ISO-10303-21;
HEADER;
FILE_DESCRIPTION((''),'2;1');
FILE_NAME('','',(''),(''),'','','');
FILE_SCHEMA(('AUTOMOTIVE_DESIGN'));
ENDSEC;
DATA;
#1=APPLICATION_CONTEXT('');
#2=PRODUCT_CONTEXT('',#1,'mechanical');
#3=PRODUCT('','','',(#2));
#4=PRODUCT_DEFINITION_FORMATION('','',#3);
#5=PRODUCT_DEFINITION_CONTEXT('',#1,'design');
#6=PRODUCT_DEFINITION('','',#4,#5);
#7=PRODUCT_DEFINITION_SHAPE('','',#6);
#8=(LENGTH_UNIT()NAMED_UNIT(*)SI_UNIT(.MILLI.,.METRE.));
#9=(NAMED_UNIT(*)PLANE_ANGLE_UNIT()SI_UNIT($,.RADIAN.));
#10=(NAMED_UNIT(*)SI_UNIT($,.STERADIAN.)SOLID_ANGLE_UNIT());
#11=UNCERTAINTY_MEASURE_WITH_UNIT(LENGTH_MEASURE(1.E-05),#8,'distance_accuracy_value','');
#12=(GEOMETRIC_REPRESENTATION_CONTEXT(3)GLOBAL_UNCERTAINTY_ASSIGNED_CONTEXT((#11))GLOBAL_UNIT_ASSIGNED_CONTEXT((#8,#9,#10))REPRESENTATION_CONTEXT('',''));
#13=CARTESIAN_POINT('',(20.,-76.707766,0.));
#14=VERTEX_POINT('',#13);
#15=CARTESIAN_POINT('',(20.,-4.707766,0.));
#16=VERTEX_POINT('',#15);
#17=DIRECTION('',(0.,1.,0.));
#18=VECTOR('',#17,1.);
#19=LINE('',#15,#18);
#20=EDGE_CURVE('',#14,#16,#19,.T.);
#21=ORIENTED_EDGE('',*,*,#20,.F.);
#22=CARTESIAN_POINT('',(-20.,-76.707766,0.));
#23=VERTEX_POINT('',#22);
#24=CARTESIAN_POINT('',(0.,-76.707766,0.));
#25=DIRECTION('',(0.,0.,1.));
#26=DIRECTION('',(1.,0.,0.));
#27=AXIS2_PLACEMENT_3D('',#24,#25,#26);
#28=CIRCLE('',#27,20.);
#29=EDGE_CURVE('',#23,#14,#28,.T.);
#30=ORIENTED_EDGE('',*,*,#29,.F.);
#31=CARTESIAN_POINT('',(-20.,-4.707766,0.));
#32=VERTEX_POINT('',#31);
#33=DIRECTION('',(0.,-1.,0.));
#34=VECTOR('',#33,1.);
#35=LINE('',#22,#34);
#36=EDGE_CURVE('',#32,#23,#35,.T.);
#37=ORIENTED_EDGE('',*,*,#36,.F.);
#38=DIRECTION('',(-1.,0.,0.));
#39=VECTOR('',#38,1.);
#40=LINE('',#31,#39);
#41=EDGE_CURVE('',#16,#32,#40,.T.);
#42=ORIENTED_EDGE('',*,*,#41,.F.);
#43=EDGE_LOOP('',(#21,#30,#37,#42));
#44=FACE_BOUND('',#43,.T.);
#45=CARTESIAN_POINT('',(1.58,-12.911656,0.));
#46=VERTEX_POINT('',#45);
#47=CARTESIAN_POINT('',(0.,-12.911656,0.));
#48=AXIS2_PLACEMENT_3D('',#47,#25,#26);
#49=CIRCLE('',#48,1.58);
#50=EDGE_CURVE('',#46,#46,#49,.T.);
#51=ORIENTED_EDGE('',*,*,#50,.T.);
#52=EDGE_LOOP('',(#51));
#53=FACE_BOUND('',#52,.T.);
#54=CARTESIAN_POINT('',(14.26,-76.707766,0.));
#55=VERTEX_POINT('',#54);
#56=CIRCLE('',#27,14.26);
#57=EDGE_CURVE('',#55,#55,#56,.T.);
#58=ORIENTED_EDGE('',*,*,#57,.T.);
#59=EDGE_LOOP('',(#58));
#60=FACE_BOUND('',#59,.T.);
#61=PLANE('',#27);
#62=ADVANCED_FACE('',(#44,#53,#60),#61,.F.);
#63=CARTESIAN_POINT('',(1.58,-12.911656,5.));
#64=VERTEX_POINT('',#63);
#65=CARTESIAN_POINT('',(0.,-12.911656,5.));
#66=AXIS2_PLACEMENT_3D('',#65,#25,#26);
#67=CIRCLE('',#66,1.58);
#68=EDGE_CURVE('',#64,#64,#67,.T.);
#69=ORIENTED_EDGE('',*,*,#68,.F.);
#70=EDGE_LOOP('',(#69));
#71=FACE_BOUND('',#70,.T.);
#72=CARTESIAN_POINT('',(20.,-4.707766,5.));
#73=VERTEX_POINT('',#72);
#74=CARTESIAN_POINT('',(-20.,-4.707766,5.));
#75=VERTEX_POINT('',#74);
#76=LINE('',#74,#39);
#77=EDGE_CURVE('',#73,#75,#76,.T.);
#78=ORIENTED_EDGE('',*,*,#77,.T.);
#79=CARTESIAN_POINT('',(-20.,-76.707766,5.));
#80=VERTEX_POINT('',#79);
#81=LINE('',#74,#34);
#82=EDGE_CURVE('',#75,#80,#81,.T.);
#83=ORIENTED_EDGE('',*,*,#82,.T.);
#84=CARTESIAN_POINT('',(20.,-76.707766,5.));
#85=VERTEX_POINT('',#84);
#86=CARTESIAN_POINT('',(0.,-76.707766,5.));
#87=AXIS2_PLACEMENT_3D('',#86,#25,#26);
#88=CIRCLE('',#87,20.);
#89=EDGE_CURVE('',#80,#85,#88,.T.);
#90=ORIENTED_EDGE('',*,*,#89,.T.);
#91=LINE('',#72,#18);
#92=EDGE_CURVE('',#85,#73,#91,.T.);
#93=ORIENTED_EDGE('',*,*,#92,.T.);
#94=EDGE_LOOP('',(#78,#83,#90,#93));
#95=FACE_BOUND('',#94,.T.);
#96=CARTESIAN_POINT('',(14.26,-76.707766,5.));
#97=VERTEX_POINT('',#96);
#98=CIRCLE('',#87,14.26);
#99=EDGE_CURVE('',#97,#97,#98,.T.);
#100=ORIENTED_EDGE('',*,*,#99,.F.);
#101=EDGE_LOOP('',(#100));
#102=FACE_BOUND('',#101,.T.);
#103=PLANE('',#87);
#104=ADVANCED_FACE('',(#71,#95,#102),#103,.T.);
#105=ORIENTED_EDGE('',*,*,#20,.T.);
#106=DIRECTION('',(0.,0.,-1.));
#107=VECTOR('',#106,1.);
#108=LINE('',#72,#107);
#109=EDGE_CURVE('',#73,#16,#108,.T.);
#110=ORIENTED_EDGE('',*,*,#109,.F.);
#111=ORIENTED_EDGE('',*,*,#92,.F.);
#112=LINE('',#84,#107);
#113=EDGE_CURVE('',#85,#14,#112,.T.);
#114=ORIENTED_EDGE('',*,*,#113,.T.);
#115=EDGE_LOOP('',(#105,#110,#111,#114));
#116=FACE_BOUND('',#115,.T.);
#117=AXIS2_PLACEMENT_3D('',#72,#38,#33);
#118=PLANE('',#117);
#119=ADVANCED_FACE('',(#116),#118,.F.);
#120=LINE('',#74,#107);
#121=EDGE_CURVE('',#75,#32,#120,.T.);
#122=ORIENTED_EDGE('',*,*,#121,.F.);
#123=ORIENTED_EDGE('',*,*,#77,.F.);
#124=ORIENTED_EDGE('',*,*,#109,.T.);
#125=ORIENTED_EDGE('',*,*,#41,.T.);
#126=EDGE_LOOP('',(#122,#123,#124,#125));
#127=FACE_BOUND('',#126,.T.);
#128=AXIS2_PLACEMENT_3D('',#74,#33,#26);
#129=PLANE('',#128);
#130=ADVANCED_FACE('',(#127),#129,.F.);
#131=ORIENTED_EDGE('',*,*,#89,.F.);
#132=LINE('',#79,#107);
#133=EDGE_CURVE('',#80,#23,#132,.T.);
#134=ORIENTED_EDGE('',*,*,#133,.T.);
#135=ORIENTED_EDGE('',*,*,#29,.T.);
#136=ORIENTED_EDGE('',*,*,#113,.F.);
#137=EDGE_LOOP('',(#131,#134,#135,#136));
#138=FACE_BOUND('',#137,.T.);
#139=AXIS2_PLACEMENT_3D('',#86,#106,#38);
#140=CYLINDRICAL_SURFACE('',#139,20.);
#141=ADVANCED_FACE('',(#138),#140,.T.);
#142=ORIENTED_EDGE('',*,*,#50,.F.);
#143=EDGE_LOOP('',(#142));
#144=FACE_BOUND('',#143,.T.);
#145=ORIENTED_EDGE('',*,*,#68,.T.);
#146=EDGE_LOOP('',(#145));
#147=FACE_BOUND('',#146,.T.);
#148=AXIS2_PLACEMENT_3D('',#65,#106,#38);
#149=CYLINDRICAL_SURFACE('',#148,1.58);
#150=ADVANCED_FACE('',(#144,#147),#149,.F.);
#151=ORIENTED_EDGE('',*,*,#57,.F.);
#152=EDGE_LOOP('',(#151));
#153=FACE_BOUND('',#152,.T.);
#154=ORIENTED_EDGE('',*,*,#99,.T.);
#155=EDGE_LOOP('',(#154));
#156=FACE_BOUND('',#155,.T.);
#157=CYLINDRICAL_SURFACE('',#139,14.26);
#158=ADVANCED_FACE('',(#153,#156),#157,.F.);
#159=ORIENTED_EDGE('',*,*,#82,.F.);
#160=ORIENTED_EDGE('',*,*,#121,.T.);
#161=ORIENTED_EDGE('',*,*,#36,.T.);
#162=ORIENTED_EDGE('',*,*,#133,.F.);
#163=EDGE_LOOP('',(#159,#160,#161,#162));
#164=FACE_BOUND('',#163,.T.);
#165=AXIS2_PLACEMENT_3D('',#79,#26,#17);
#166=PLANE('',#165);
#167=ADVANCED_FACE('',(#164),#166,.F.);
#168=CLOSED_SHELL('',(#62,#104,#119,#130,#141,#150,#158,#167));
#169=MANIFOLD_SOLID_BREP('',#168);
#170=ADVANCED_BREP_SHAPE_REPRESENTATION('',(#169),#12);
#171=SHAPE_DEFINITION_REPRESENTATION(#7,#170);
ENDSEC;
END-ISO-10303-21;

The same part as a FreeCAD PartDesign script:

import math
import FreeCAD as App
import Part
import Sketcher

doc = App.newDocument("Part")
body = doc.addObject("PartDesign::Body", "Body")

sketch1 = body.newObject("Sketcher::SketchObject", "Sketch")
sketch1.AttachmentSupport = (doc.getObject("XY_Plane"), [""])
sketch1.MapMode = "FlatFace"
sketch1.addGeometry(Part.LineSegment(App.Vector(-20, -4.7, 0), App.Vector(-20, -76.7, 0)), False)
sketch1.addGeometry(Part.ArcOfCircle(Part.Circle(App.Vector(0, -76.7, 0), App.Vector(0, 0, 1), 20), math.radians(180), math.radians(360)), False)
sketch1.addGeometry(Part.LineSegment(App.Vector(20, -76.7, 0), App.Vector(20, -4.7, 0)), False)
sketch1.addGeometry(Part.LineSegment(App.Vector(20, -4.7, 0), App.Vector(-20, -4.7, 0)), False)
sketch1.addGeometry(Part.Circle(App.Vector(0, -76.7, 0), App.Vector(0, 0, 1), 14.3), False)
sketch1.addGeometry(Part.Circle(App.Vector(0, -12.9, 0), App.Vector(0, 0, 1), 1.6), False)
sketch1.addConstraint(Sketcher.Constraint("Tangent", 0, 2, 1, 1))
sketch1.addConstraint(Sketcher.Constraint("Tangent", 1, 2, 2, 1))
sketch1.addConstraint(Sketcher.Constraint("Coincident", 2, 2, 3, 1))
sketch1.addConstraint(Sketcher.Constraint("Coincident", 3, 2, 0, 1))
sketch1.addConstraint(Sketcher.Constraint("Vertical", 0))
sketch1.addConstraint(Sketcher.Constraint("Vertical", 2))
sketch1.addConstraint(Sketcher.Constraint("Horizontal", 3))
sketch1.addConstraint(Sketcher.Constraint("Coincident", 4, 3, 1, 3))
sketch1.addConstraint(Sketcher.Constraint("PointOnObject", 1, 3, -2))
sketch1.addConstraint(Sketcher.Constraint("PointOnObject", 5, 3, -2))
sketch1.addConstraint(Sketcher.Constraint("Radius", 1, 20.0))
sketch1.addConstraint(Sketcher.Constraint("Diameter", 4, 28.52))
sketch1.addConstraint(Sketcher.Constraint("Diameter", 5, 3.16))
sketch1.addConstraint(Sketcher.Constraint("DistanceY", 0, 2, 0, 1, 72.0))
sketch1.addConstraint(Sketcher.Constraint("DistanceY", 1, 3, 5, 3, 63.796111))
sketch1.addConstraint(Sketcher.Constraint("DistanceY", 1, 3, -1, 1, 76.707766))
pad1 = body.newObject("PartDesign::Pad", "Pad")
pad1.Profile = sketch1
pad1.Length = 5

doc.recompute()
